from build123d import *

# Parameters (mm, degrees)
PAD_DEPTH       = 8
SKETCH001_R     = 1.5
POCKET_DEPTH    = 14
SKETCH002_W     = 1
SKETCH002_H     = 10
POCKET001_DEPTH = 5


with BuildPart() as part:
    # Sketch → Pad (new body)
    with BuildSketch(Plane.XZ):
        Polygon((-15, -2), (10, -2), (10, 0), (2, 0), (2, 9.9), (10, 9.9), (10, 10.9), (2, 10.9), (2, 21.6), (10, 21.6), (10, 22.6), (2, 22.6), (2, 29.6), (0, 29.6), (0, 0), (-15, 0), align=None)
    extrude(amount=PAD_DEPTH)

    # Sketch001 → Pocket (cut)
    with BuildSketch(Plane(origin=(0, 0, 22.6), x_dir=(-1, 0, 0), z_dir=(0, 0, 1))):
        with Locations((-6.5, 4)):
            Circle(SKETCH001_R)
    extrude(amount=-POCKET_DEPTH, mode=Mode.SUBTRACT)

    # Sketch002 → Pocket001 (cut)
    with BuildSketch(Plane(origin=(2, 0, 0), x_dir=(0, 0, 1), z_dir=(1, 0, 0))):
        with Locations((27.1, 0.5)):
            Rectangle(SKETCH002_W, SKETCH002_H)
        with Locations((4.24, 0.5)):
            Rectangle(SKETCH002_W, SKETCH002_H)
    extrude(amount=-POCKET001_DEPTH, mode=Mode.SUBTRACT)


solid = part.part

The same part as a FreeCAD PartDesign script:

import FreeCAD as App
import Part
import Sketcher
from FreeCAD import Vector
Q = App.Units.Quantity

doc = App.newDocument("Part")
body = doc.addObject("PartDesign::Body", "Body")

# Sketch on XZ plane
sketch1 = doc.addObject("Sketcher::SketchObject", "Sketch")
body.addObject(sketch1)
sketch1.AttachmentSupport = (doc.XZ_Plane, [""])
sketch1.MapMode = "FlatFace"
sketch1.addGeometry([
    Part.LineSegment(Vector(-15, -2, 0), Vector(10, -2, 0)),  # 0
    Part.LineSegment(Vector(10, -2, 0), Vector(10, 0, 0)),  # 1
    Part.LineSegment(Vector(10, 0, 0), Vector(2, 0, 0)),  # 2
    Part.LineSegment(Vector(2, 0, 0), Vector(2, 9.9, 0)),  # 3
    Part.LineSegment(Vector(2, 9.9, 0), Vector(10, 9.9, 0)),  # 4
    Part.LineSegment(Vector(10, 9.9, 0), Vector(10, 10.9, 0)),  # 5
    Part.LineSegment(Vector(10, 10.9, 0), Vector(2, 10.9, 0)),  # 6
    Part.LineSegment(Vector(2, 10.9, 0), Vector(2, 21.6, 0)),  # 7
    Part.LineSegment(Vector(2, 21.6, 0), Vector(10, 21.6, 0)),  # 8
    Part.LineSegment(Vector(10, 21.6, 0), Vector(10, 22.6, 0)),  # 9
    Part.LineSegment(Vector(10, 22.6, 0), Vector(2, 22.6, 0)),  # 10
    Part.LineSegment(Vector(2, 22.6, 0), Vector(2, 29.6, 0)),  # 11
    Part.LineSegment(Vector(2, 29.6, 0), Vector(0, 29.6, 0)),  # 12
    Part.LineSegment(Vector(0, 29.6, 0), Vector(0, 0, 0)),  # 13
    Part.LineSegment(Vector(0, 0, 0), Vector(-15, 0, 0)),  # 14
    Part.LineSegment(Vector(-15, 0, 0), Vector(-15, -2, 0)),  # 15
], False)
sketch1.addConstraint([
    Sketcher.Constraint("Coincident", 0, 2, 1, 1),
    Sketcher.Constraint("Coincident", 1, 2, 2, 1),
    Sketcher.Constraint("Coincident", 2, 2, 3, 1),
    Sketcher.Constraint("Coincident", 3, 2, 4, 1),
    Sketcher.Constraint("Coincident", 4, 2, 5, 1),
    Sketcher.Constraint("Coincident", 5, 2, 6, 1),
    Sketcher.Constraint("Coincident", 6, 2, 7, 1),
    Sketcher.Constraint("Coincident", 7, 2, 8, 1),
    Sketcher.Constraint("Coincident", 8, 2, 9, 1),
    Sketcher.Constraint("Coincident", 9, 2, 10, 1),
    Sketcher.Constraint("Coincident", 10, 2, 11, 1),
    Sketcher.Constraint("Coincident", 11, 2, 12, 1),
    Sketcher.Constraint("Coincident", 12, 2, 13, 1),
    Sketcher.Constraint("Coincident", 13, 2, 14, 1),
    Sketcher.Constraint("Coincident", 14, 2, 15, 1),
    Sketcher.Constraint("Coincident", 15, 2, 0, 1),
    Sketcher.Constraint("Horizontal", 0),
    Sketcher.Constraint("Vertical", 1),
    Sketcher.Constraint("Horizontal", 2),
    Sketcher.Constraint("Vertical", 3),
    Sketcher.Constraint("Horizontal", 4),
    Sketcher.Constraint("Vertical", 5),
    Sketcher.Constraint("Horizontal", 6),
    Sketcher.Constraint("Vertical", 7),
    Sketcher.Constraint("Horizontal", 8),
    Sketcher.Constraint("Vertical", 9),
    Sketcher.Constraint("Horizontal", 10),
    Sketcher.Constraint("Vertical", 11),
    Sketcher.Constraint("Horizontal", 12),
    Sketcher.Constraint("Vertical", 13),
    Sketcher.Constraint("Horizontal", 14),
    Sketcher.Constraint("Vertical", 15),
    Sketcher.Constraint("Coincident", 13, 2, -1, 1),
    Sketcher.Constraint("PointOnObject", 1, 2, -1),
    Sketcher.Constraint("Vertical", 1, 2, 4, 2),
    Sketcher.Constraint("Vertical", 3, 2, 6, 2),
    Sketcher.Constraint("Vertical", 5, 2, 8, 2),
    Sketcher.Constraint("Vertical", 7, 2, 10, 2),
    Sketcher.Constraint("Equal", 12, 1),
    Sketcher.Constraint("Equal", 5, 9),
    Sketcher.Constraint("DistanceX", 0, 1, 0, 2, Q("25 mm")),
    Sketcher.Constraint("DistanceX", 2, 2, 2, 1, Q("8 mm")),
    Sketcher.Constraint("DistanceX", 12, 2, 12, 1, Q("2 mm")),
    Sketcher.Constraint("DistanceY", 5, 1, 5, 2, Q("1 mm")),
    Sketcher.Constraint("DistanceY", 11, 1, 11, 2, Q("7 mm")),
    Sketcher.Constraint("DistanceY", 3, 1, 3, 2, Q("9.9 mm")),
    Sketcher.Constraint("DistanceY", 7, 1, 7, 2, Q("10.7 mm")),
])
pad1 = doc.addObject("PartDesign::Pad", "Pad")
body.addObject(pad1)
pad1.Profile = sketch1
pad1.Length = 8

# Sketch on XY plane
sketch2 = doc.addObject("Sketcher::SketchObject", "Sketch001")
body.addObject(sketch2)
sketch2.AttachmentSupport = (doc.XY_Plane, [""])
sketch2.MapMode = "FlatFace"
sketch2.AttachmentOffset = App.Placement(Vector(0, 0, 22.6), App.Rotation())
sketch2.addGeometry(Part.Circle(Vector(6.5, -4, 0), Vector(0, 0, 1), 1.5), False)
sketch2.addConstraint([
    Sketcher.Constraint("Diameter", 0, Q("3 mm")),
    Sketcher.Constraint("DistanceY", 0, 3, -1, 1, Q("4 mm")),
    Sketcher.Constraint("DistanceX", -1, 1, 0, 3, Q("6.5 mm")),
])
pocket1 = doc.addObject("PartDesign::Pocket", "Pocket")
body.addObject(pocket1)
pocket1.Profile = sketch2
pocket1.Length = 14

# Sketch on YZ plane
sketch3 = doc.addObject("Sketcher::SketchObject", "Sketch002")
body.addObject(sketch3)
sketch3.AttachmentSupport = (doc.YZ_Plane, [""])
sketch3.MapMode = "FlatFace"
sketch3.AttachmentOffset = App.Placement(Vector(0, 0, 2), App.Rotation())
sketch3.addGeometry([
    Part.LineSegment(Vector(-5.5, 26.6, 0), Vector(4.5, 26.6, 0)),  # 0
    Part.LineSegment(Vector(4.5, 26.6, 0), Vector(4.5, 27.6, 0)),  # 1
    Part.LineSegment(Vector(4.5, 27.6, 0), Vector(-5.5, 27.6, 0)),  # 2
    Part.LineSegment(Vector(-5.5, 27.6, 0), Vector(-5.5, 26.6, 0)),  # 3
    Part.LineSegment(Vector(-5.5, 3.74, 0), Vector(4.5, 3.74, 0)),  # 4
    Part.LineSegment(Vector(4.5, 3.74, 0), Vector(4.5, 4.74, 0)),  # 5
    Part.LineSegment(Vector(4.5, 4.74, 0), Vector(-5.5, 4.74, 0)),  # 6
    Part.LineSegment(Vector(-5.5, 4.74, 0), Vector(-5.5, 3.74, 0)),  # 7
], False)
sketch3.addConstraint([
    Sketcher.Constraint("Coincident", 0, 2, 1, 1),
    Sketcher.Constraint("Coincident", 1, 2, 2, 1),
    Sketcher.Constraint("Coincident", 2, 2, 3, 1),
    Sketcher.Constraint("Coincident", 3, 2, 0, 1),
    Sketcher.Constraint("Coincident", 4, 2, 5, 1),
    Sketcher.Constraint("Coincident", 5, 2, 6, 1),
    Sketcher.Constraint("Coincident", 6, 2, 7, 1),
    Sketcher.Constraint("Coincident", 7, 2, 4, 1),
    Sketcher.Constraint("Horizontal", 0),
    Sketcher.Constraint("Vertical", 1),
    Sketcher.Constraint("Horizontal", 2),
    Sketcher.Constraint("Vertical", 3),
    Sketcher.Constraint("Horizontal", 4),
    Sketcher.Constraint("Vertical", 5),
    Sketcher.Constraint("Horizontal", 6),
    Sketcher.Constraint("Vertical", 7),
    Sketcher.Constraint("Vertical", 1, 2, 4, 2),
    Sketcher.Constraint("Vertical", 3, 2, 6, 2),
    Sketcher.Constraint("Equal", 3, 5),
    Sketcher.Constraint("DistanceX", 0, 1, 0, 2, Q("10 mm")),
    Sketcher.Constraint("DistanceY", 1, 1, 1, 2, Q("1 mm")),
    Sketcher.Constraint("DistanceX", -1, 1, 0, 2, Q("4.5 mm")),
    Sketcher.Constraint("DistanceY", -1, 1, 0, 2, Q("26.6 mm")),
    Sketcher.Constraint("DistanceY", -1, 1, 4, 2, Q("3.74 mm")),
])
pocket2 = doc.addObject("PartDesign::Pocket", "Pocket001")
body.addObject(pocket2)
pocket2.Profile = sketch3
pocket2.Length = 5

doc.recompute()
